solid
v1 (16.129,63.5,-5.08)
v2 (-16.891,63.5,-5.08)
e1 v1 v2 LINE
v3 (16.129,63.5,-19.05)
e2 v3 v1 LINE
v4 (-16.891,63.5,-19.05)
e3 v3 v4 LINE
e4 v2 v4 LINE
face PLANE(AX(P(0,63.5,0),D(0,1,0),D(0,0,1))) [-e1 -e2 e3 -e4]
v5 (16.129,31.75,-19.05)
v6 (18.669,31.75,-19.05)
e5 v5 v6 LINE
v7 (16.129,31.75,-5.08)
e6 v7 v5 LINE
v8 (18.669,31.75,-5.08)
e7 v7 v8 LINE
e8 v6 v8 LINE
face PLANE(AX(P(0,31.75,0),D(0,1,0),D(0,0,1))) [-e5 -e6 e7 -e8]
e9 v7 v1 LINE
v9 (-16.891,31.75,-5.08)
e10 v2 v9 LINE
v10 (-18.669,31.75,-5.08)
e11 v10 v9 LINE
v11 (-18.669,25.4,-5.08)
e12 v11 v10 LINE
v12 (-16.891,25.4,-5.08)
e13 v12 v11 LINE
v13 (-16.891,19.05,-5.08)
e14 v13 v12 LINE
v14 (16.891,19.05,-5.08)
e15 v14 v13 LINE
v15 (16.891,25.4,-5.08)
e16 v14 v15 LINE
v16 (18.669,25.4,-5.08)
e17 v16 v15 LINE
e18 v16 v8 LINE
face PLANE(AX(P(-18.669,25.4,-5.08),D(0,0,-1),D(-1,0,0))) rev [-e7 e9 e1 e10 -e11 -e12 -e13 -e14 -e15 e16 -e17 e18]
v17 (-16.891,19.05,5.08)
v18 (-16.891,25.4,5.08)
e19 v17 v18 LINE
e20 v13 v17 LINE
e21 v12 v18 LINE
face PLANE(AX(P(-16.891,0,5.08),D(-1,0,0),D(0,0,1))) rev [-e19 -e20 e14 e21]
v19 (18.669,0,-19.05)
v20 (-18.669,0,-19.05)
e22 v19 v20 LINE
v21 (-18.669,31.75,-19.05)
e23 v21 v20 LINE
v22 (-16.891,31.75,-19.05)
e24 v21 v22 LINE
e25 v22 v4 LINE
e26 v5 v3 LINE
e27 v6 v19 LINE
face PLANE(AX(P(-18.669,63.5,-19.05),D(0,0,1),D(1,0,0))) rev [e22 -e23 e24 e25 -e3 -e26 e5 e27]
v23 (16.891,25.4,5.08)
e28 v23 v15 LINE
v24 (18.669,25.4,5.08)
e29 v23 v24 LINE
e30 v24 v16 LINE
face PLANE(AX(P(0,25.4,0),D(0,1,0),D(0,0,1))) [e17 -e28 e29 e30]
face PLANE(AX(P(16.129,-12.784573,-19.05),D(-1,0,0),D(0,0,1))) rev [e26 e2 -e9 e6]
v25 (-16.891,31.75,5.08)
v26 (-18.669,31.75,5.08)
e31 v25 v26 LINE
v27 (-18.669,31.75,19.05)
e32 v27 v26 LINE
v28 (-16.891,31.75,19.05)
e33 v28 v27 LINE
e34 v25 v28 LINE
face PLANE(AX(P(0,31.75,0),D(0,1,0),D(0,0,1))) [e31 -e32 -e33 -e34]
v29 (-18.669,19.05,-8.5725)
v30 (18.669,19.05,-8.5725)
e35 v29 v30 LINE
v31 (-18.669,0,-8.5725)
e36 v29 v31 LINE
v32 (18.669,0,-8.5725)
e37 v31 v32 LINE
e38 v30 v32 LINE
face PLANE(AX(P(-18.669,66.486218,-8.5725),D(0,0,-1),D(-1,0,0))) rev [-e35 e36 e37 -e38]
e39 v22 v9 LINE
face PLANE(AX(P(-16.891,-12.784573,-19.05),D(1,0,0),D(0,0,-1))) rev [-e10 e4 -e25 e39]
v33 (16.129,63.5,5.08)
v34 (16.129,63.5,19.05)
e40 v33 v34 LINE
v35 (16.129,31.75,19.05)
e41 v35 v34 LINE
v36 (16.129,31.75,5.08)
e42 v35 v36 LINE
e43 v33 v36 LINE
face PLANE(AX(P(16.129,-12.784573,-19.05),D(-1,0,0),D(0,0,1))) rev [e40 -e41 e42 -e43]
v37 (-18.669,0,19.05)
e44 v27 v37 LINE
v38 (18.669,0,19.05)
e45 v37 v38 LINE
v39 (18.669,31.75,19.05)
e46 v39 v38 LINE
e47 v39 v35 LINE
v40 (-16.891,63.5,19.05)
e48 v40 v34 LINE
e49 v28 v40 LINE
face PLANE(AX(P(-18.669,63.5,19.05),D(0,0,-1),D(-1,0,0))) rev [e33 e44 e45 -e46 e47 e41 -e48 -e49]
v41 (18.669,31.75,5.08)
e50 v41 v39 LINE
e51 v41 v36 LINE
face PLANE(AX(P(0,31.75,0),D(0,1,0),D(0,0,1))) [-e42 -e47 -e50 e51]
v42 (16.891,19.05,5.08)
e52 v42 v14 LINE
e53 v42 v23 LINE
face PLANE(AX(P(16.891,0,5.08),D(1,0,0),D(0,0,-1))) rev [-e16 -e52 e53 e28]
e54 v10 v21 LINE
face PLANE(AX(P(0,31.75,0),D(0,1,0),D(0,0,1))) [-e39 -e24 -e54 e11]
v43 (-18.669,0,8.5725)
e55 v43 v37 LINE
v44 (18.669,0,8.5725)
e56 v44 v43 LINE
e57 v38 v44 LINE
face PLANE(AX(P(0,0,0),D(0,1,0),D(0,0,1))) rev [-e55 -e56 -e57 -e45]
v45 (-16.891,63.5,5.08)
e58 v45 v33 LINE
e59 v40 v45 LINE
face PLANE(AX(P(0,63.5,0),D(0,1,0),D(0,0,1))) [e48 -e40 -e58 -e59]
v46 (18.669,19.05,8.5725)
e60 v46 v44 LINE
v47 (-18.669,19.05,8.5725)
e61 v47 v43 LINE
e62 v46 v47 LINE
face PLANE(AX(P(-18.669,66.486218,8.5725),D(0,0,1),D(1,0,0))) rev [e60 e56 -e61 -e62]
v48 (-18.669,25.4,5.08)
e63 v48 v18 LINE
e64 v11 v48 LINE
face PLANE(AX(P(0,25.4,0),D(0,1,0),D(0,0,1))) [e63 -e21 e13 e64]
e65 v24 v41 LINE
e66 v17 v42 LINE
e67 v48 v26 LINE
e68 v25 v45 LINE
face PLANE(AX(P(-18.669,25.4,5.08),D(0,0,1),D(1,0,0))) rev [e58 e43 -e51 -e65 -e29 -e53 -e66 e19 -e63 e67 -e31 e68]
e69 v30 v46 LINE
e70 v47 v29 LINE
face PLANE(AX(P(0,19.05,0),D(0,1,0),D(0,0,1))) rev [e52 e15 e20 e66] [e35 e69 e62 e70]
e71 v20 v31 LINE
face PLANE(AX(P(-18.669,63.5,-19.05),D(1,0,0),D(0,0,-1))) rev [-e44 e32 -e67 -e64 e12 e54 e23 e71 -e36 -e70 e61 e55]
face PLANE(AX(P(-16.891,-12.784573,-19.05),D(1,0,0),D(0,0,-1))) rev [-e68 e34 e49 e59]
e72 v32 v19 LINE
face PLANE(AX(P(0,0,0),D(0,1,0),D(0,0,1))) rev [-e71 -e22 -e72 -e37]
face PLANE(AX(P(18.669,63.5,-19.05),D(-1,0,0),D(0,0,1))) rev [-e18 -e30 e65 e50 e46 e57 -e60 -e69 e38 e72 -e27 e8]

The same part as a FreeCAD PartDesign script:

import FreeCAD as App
import Part
import Sketcher

V = App.Vector
Q = App.Units.Quantity

doc = App.newDocument("Part")
body = doc.addObject("PartDesign::Body", "Body")

# Sketch on XZ plane
sketch1 = body.newObject("Sketcher::SketchObject", "Sketch")
sketch1.AttachmentSupport = (doc.getObject("XZ_Plane"), [""])
sketch1.MapMode = "FlatFace"
sketch1.addGeometry(Part.LineSegment(V(-19, -19, 0), V(-19, 19, 0)), False)
sketch1.addGeometry(Part.LineSegment(V(-19, 19, 0), V(19, 19, 0)), False)
sketch1.addGeometry(Part.LineSegment(V(19, 19, 0), V(19, -19, 0)), False)
sketch1.addGeometry(Part.LineSegment(V(19, -19, 0), V(-19, -19, 0)), False)
sketch1.addConstraint(Sketcher.Constraint("Coincident", 0, 2, 1, 1))
sketch1.addConstraint(Sketcher.Constraint("Coincident", 1, 2, 2, 1))
sketch1.addConstraint(Sketcher.Constraint("Coincident", 2, 2, 3, 1))
sketch1.addConstraint(Sketcher.Constraint("Coincident", 3, 2, 0, 1))
sketch1.addConstraint(Sketcher.Constraint("Vertical", 0))
sketch1.addConstraint(Sketcher.Constraint("Horizontal", 1))
sketch1.addConstraint(Sketcher.Constraint("Vertical", 2))
sketch1.addConstraint(Sketcher.Constraint("Horizontal", 3))
sketch1.addConstraint(Sketcher.Constraint("Symmetric", 0, 2, 2, 2, -1, 1))
sketch1.addConstraint(Sketcher.Constraint("DistanceY", 0, 1, 0, 2, Q("1.5 in")))
sketch1.addConstraint(Sketcher.Constraint("DistanceX", 1, 1, 1, 2, Q("1.47 in")))
pad1 = body.newObject("PartDesign::Pad", "Pad")
pad1.Profile = sketch1
pad1.Length = Q("2.5 in")
pad1.Reversed = True

# Sketch on XZ plane
sketch2 = body.newObject("Sketcher::SketchObject", "Sketch001")
sketch2.AttachmentSupport = (doc.getObject("XZ_Plane"), [""])
sketch2.MapMode = "FlatFace"
sketch2.AttachmentOffset = App.Placement(V(0, 0, -2.5 * 25.4), App.Rotation())
sketch2.addGeometry(Part.LineSegment(V(-19, -5, 0), V(-19, 5, 0)), False)
sketch2.addGeometry(Part.LineSegment(V(-19, 5, 0), V(19, 5, 0)), False)
sketch2.addGeometry(Part.LineSegment(V(19, 5, 0), V(19, -5, 0)), False)
sketch2.addGeometry(Part.LineSegment(V(19, -5, 0), V(-19, -5, 0)), False)
sketch2.addConstraint(Sketcher.Constraint("Coincident", 0, 2, 1, 1))
sketch2.addConstraint(Sketcher.Constraint("Coincident", 1, 2, 2, 1))
sketch2.addConstraint(Sketcher.Constraint("Coincident", 2, 2, 3, 1))
sketch2.addConstraint(Sketcher.Constraint("Coincident", 3, 2, 0, 1))
sketch2.addConstraint(Sketcher.Constraint("Vertical", 0))
sketch2.addConstraint(Sketcher.Constraint("Horizontal", 1))
sketch2.addConstraint(Sketcher.Constraint("Vertical", 2))
sketch2.addConstraint(Sketcher.Constraint("Horizontal", 3))
sketch2.addConstraint(Sketcher.Constraint("Symmetric", 0, 2, 2, 2, -1, 1))
sketch2.addConstraint(Sketcher.Constraint("DistanceY", 0, 1, 0, 2, Q("0.4 in")))
sketch2.addConstraint(Sketcher.Constraint("DistanceX", 1, 1, 1, 2, Q("1.47 in")))
pocket1 = body.newObject("PartDesign::Pocket", "Pocket")
pocket1.Profile = sketch2
pocket1.Length = Q("1.5 in")
pocket1.Reversed = True

# Sketch on XZ plane
sketch3 = body.newObject("Sketcher::SketchObject", "Sketch002")
sketch3.AttachmentSupport = (doc.getObject("XZ_Plane"), [""])
sketch3.MapMode = "FlatFace"
sketch3.addGeometry(Part.LineSegment(V(-19, 9, 0), V(-19, -9, 0)), False)
sketch3.addGeometry(Part.LineSegment(V(-19, -9, 0), V(19, -9, 0)), False)
sketch3.addGeometry(Part.LineSegment(V(19, -9, 0), V(19, 9, 0)), False)
sketch3.addGeometry(Part.LineSegment(V(19, 9, 0), V(-19, 9, 0)), False)
sketch3.addConstraint(Sketcher.Constraint("Coincident", 0, 2, 1, 1))
sketch3.addConstraint(Sketcher.Constraint("Coincident", 1, 2, 2, 1))
sketch3.addConstraint(Sketcher.Constraint("Coincident", 2, 2, 3, 1))
sketch3.addConstraint(Sketcher.Constraint("Coincident", 3, 2, 0, 1))
sketch3.addConstraint(Sketcher.Constraint("Vertical", 0))
sketch3.addConstraint(Sketcher.Constraint("Horizontal", 1))
sketch3.addConstraint(Sketcher.Constraint("Vertical", 2))
sketch3.addConstraint(Sketcher.Constraint("Horizontal", 3))
sketch3.addConstraint(Sketcher.Constraint("Symmetric", 0, 2, 2, 2, -1, 1))
sketch3.addConstraint(Sketcher.Constraint("DistanceX", 1, 1, 1, 2, Q("1.47 in")))
sketch3.addConstraint(Sketcher.Constraint("DistanceY", 0, 2, 0, 1, Q("0.675 in")))
pocket2 = body.newObject("PartDesign::Pocket", "Pocket001")
pocket2.Profile = sketch3
pocket2.Length = Q("0.75 in")

# Sketch on XZ plane
sketch4 = body.newObject("Sketcher::SketchObject", "Sketch003")
sketch4.AttachmentSupport = (doc.getObject("XZ_Plane"), [""])
sketch4.MapMode = "FlatFace"
sketch4.AttachmentOffset = App.Placement(V(0, 0, -1 * 25.4), App.Rotation())
sketch4.addGeometry(Part.LineSegment(V(-17, -5, 0), V(-17, 5, 0)), False)
sketch4.addGeometry(Part.LineSegment(V(-17, 5, 0), V(17, 5, 0)), False)
sketch4.addGeometry(Part.LineSegment(V(17, 5, 0), V(17, -5, 0)), False)
sketch4.addGeometry(Part.LineSegment(V(17, -5, 0), V(-17, -5, 0)), False)
sketch4.addConstraint(Sketcher.Constraint("Coincident", 0, 2, 1, 1))
sketch4.addConstraint(Sketcher.Constraint("Coincident", 1, 2, 2, 1))
sketch4.addConstraint(Sketcher.Constraint("Coincident", 2, 2, 3, 1))
sketch4.addConstraint(Sketcher.Constraint("Coincident", 3, 2, 0, 1))
sketch4.addConstraint(Sketcher.Constraint("Vertical", 0))
sketch4.addConstraint(Sketcher.Constraint("Horizontal", 1))
sketch4.addConstraint(Sketcher.Constraint("Vertical", 2))
sketch4.addConstraint(Sketcher.Constraint("Horizontal", 3))
sketch4.addConstraint(Sketcher.Constraint("Symmetric", 0, 2, 2, 2, -1, 1))
sketch4.addConstraint(Sketcher.Constraint("DistanceY", 0, 1, 0, 2, Q("0.4 in")))
sketch4.addConstraint(Sketcher.Constraint("DistanceX", 1, 1, 1, 2, Q("1.33 in")))
pocket3 = body.newObject("PartDesign::Pocket", "Pocket002")
pocket3.Profile = sketch4
pocket3.Type = "ThroughAll"
pocket3.Reversed = True

# Sketch on XZ plane
sketch5 = body.newObject("Sketcher::SketchObject", "Sketch004")
sketch5.AttachmentSupport = (doc.getObject("XZ_Plane"), [""])
sketch5.MapMode = "FlatFace"
sketch5.AttachmentOffset = App.Placement(V(0, 0, -2.5 * 25.4), App.Rotation())
sketch5.addGeometry(Part.LineSegment(V(16.1, -19.1, 0), V(16.1, 19.1, 0)), False)
sketch5.addGeometry(Part.LineSegment(V(16.1, 19.1, 0), V(18.7, 19.1, 0)), False)
sketch5.addGeometry(Part.LineSegment(V(18.7, 19.1, 0), V(18.7, -19.1, 0)), False)
sketch5.addGeometry(Part.LineSegment(V(18.7, -19.1, 0), V(16.1, -19.1, 0)), False)
sketch5.addGeometry(Part.LineSegment(V(-18.7, -19.1, 0), V(-18.7, 19.1, 0)), False)
sketch5.addGeometry(Part.LineSegment(V(-18.7, 19.1, 0), V(-16.9, 19.1, 0)), False)
sketch5.addGeometry(Part.LineSegment(V(-16.9, 19.1, 0), V(-16.9, -19.1, 0)), False)
sketch5.addGeometry(Part.LineSegment(V(-16.9, -19.1, 0), V(-18.7, -19.1, 0)), False)
sketch5.addConstraint(Sketcher.Constraint("Coincident", 0, 2, 1, 1))
sketch5.addConstraint(Sketcher.Constraint("Coincident", 1, 2, 2, 1))
sketch5.addConstraint(Sketcher.Constraint("Coincident", 2, 2, 3, 1))
sketch5.addConstraint(Sketcher.Constraint("Coincident", 3, 2, 0, 1))
sketch5.addConstraint(Sketcher.Constraint("Coincident", 4, 2, 5, 1))
sketch5.addConstraint(Sketcher.Constraint("Coincident", 5, 2, 6, 1))
sketch5.addConstraint(Sketcher.Constraint("Coincident", 6, 2, 7, 1))
sketch5.addConstraint(Sketcher.Constraint("Coincident", 7, 2, 4, 1))
sketch5.addConstraint(Sketcher.Constraint("Vertical", 0))
sketch5.addConstraint(Sketcher.Constraint("Horizontal", 1))
sketch5.addConstraint(Sketcher.Constraint("Vertical", 2))
sketch5.addConstraint(Sketcher.Constraint("Horizontal", 3))
sketch5.addConstraint(Sketcher.Constraint("Vertical", 4))
sketch5.addConstraint(Sketcher.Constraint("Horizontal", 5))
sketch5.addConstraint(Sketcher.Constraint("Vertical", 6))
sketch5.addConstraint(Sketcher.Constraint("Horizontal", 7))
sketch5.addConstraint(Sketcher.Constraint("Symmetric", 2, 2, 4, 2, -1, 1))
sketch5.addConstraint(Sketcher.Constraint("Horizontal", 1, 2, 4, 2))
sketch5.addConstraint(Sketcher.Constraint("Horizontal", 3, 2, 6, 2))
sketch5.addConstraint(Sketcher.Constraint("DistanceX", 1, 1, 1, 2, Q("0.1 in")))
sketch5.addConstraint(Sketcher.Constraint("DistanceY", 0, 1, 0, 2, Q("1.5 in")))
sketch5.addConstraint(Sketcher.Constraint("DistanceX", 5, 1, 5, 2, Q("0.07 in")))
sketch5.addConstraint(Sketcher.Constraint("DistanceX", 5, 2, 0, 2, Q("1.3 in")))
pocket4 = body.newObject("PartDesign::Pocket", "Pocket003")
pocket4.Profile = sketch5
pocket4.Length = Q("1.25 in")
pocket4.Reversed = True

doc.recompute()
